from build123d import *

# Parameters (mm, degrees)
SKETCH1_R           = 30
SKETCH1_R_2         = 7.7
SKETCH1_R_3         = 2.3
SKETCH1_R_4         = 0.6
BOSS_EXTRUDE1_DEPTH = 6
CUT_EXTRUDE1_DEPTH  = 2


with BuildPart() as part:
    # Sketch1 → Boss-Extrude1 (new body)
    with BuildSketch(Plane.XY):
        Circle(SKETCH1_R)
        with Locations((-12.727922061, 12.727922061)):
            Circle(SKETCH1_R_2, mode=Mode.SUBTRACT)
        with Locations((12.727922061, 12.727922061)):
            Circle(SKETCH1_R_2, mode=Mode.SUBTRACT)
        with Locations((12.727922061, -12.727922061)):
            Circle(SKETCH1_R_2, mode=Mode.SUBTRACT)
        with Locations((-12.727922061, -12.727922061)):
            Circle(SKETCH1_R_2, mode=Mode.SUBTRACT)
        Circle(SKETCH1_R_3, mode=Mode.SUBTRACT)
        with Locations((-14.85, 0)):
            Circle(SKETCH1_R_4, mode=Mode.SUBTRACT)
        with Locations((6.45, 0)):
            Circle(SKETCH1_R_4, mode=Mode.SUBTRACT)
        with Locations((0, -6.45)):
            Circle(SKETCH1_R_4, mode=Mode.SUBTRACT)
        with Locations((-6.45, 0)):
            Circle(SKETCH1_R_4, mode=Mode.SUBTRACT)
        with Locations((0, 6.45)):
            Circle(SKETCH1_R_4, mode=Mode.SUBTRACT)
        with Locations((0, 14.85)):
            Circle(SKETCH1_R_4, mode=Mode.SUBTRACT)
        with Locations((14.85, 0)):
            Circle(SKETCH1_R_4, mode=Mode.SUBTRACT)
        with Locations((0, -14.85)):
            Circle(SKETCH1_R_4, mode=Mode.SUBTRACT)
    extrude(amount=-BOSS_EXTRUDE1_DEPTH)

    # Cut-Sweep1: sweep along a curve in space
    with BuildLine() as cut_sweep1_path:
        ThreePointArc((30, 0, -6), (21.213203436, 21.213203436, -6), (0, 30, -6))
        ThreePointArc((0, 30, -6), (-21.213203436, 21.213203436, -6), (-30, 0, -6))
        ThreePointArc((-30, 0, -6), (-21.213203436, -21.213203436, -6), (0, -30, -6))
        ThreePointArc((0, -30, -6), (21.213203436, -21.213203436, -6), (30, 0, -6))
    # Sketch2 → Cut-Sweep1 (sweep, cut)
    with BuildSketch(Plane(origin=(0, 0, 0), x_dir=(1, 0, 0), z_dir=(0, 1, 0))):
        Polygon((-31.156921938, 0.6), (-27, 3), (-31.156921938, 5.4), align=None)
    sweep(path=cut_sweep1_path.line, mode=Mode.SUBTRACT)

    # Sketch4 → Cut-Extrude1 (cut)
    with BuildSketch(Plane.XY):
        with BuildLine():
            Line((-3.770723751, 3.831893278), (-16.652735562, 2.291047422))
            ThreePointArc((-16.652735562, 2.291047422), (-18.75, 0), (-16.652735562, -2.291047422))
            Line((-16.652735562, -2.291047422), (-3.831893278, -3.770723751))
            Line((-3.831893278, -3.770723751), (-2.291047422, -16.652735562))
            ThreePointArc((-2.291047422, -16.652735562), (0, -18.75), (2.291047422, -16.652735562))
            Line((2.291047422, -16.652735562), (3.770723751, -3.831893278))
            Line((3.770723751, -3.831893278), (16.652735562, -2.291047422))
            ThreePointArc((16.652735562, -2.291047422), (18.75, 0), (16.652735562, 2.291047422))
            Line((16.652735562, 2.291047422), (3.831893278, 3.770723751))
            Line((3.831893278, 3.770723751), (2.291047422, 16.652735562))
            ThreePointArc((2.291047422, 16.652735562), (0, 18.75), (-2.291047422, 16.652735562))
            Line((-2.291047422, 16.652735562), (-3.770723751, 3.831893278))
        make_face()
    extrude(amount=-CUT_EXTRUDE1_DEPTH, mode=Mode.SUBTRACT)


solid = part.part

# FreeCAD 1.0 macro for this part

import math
import FreeCAD as App
import Part
import Sketcher
from FreeCAD import Vector
Q = App.Units.Quantity


def add_polygon(sketch, points):
    """Adds a closed chain of lines whose ends are joined by coincident constraints."""
    first, n = sketch.GeometryCount, len(points)
    for a, b in zip(points, points[1:] + points[:1]):
        sketch.addGeometry(Part.LineSegment(App.Vector(*a, 0), App.Vector(*b, 0)), False)
    for i in range(n):
        sketch.addConstraint(Sketcher.Constraint("Coincident", first + i, 2, first + (i + 1) % n, 1))

doc = App.newDocument("Part")
body = doc.addObject("PartDesign::Body", "Body")

sketch1 = body.newObject("Sketcher::SketchObject", "Sketch")
sketch1.AttachmentSupport = (doc.getObject("XY_Plane"), [""])
sketch1.MapMode = "FlatFace"
sketch1.addGeometry([
    Part.Circle(Vector(0, 0, 0), Vector(0, 0, 1), 30),
    Part.Circle(Vector(-12.727922, -12.727922, 0), Vector(0, 0, 1), 7.7),
    Part.Circle(Vector(0, -14.85, 0), Vector(0, 0, 1), 0.6),
    Part.Circle(Vector(0, -6.45, 0), Vector(0, 0, 1), 0.6),
    Part.Circle(Vector(12.727922, -12.727922, 0), Vector(0, 0, 1), 7.7),
    Part.Circle(Vector(-14.85, 0, 0), Vector(0, 0, 1), 0.6),
    Part.Circle(Vector(-6.45, 0, 0), Vector(0, 0, 1), 0.6),
    Part.Circle(Vector(0, 0, 0), Vector(0, 0, 1), 2.3),
    Part.Circle(Vector(0, 6.45, 0), Vector(0, 0, 1), 0.6),
    Part.Circle(Vector(-12.727922, 12.727922, 0), Vector(0, 0, 1), 7.7),
    Part.Circle(Vector(0, 14.85, 0), Vector(0, 0, 1), 0.6),
    Part.Circle(Vector(6.45, 0, 0), Vector(0, 0, 1), 0.6),
    Part.Circle(Vector(14.85, 0, 0), Vector(0, 0, 1), 0.6),
    Part.Circle(Vector(12.727922, 12.727922, 0), Vector(0, 0, 1), 7.7),
], False)
sketch1.addConstraint([
    Sketcher.Constraint("Coincident", 0, 3, -1, 1),
    Sketcher.Constraint("Coincident", 7, 3, -1, 1),
    Sketcher.Constraint("Equal", 2, 3),
    Sketcher.Constraint("Equal", 1, 4),
    Sketcher.Constraint("Equal", 3, 5),
    Sketcher.Constraint("Equal", 5, 6),
    Sketcher.Constraint("Equal", 6, 8),
    Sketcher.Constraint("Equal", 4, 9),
    Sketcher.Constraint("Equal", 8, 10),
    Sketcher.Constraint("Equal", 10, 11),
    Sketcher.Constraint("Equal", 11, 12),
    Sketcher.Constraint("Equal", 9, 13),
    Sketcher.Constraint("Symmetric", 3, 3, 8, 3, -1, 1),
    Sketcher.Constraint("Symmetric", 4, 3, 9, 3, -1, 1),
    Sketcher.Constraint("Symmetric", 2, 3, 10, 3, -1, 1),
    Sketcher.Constraint("Symmetric", 6, 3, 11, 3, -1, 1),
    Sketcher.Constraint("Symmetric", 5, 3, 12, 3, -1, 1),
    Sketcher.Constraint("Symmetric", 1, 3, 13, 3, -1, 1),
    Sketcher.Constraint("Symmetric", 1, 3, 4, 3, -2),
    Sketcher.Constraint("PointOnObject", 2, 3, -2),
    Sketcher.Constraint("PointOnObject", 3, 3, -2),
    Sketcher.Constraint("PointOnObject", 5, 3, -1),
    Sketcher.Constraint("PointOnObject", 6, 3, -1),
    Sketcher.Constraint("Diameter", 0, 60.0),
    Sketcher.Constraint("Diameter", 1, 15.4),
    Sketcher.Constraint("Diameter", 2, 1.2),
    Sketcher.Constraint("Diameter", 7, 4.6),
    Sketcher.Constraint("DistanceY", 2, 3, 3, 3, 8.4),
    Sketcher.Constraint("DistanceX", 5, 3, 6, 3, 8.4),
    Sketcher.Constraint("DistanceY", 3, 3, 8, 3, 12.9),
    Sketcher.Constraint("DistanceX", 6, 3, 11, 3, 12.9),
    Sketcher.Constraint("DistanceX", 1, 3, -1, 1, 12.727922),
    Sketcher.Constraint("DistanceY", 1, 3, -1, 1, 12.727922),
])
pad1 = body.newObject("PartDesign::Pad", "Pad")
pad1.Profile = sketch1
pad1.Length = 6
pad1.Reversed = True

sketch2 = body.newObject("Sketcher::SketchObject", "Sketch001")
sketch2.AttachmentSupport = (doc.getObject("XZ_Plane"), [""])
sketch2.MapMode = "FlatFace"
add_polygon(sketch2, [(-31.156922, -0.6), (-27, -3), (-31.156922, -5.4)])
sketch2.addConstraint([
    Sketcher.Constraint("Vertical", 2),
    Sketcher.Constraint("Equal", 0, 1),
    Sketcher.Constraint("Angle", 0, Q("-30 deg")),
    Sketcher.Constraint("DistanceY", 2, 1, 2, 2, 4.8),
    Sketcher.Constraint("DistanceX", 0, 2, -1, 1, 27.0),
    Sketcher.Constraint("DistanceY", 0, 2, -1, 1, 3.0),
])

sketch3 = body.newObject("Sketcher::SketchObject", "Sketch002")
sketch3.AttachmentSupport = (doc.getObject("XY_Plane"), [""])
sketch3.MapMode = "FlatFace"
sketch3.AttachmentOffset = App.Placement(Vector(0, 0, -6), App.Rotation())
sketch3.addGeometry([
    Part.ArcOfCircle(Part.Circle(Vector(0, 0, 0), Vector(0, 0, 1), 30), math.radians(0), math.radians(90)),
    Part.ArcOfCircle(Part.Circle(Vector(0, 0, 0), Vector(0, 0, 1), 30), math.radians(90), math.radians(180)),
    Part.ArcOfCircle(Part.Circle(Vector(0, 0, 0), Vector(0, 0, 1), 30), math.radians(180), math.radians(270)),
    Part.ArcOfCircle(Part.Circle(Vector(0, 0, 0), Vector(0, 0, 1), 30), math.radians(-90), math.radians(0)),
], False)
sketch3.addConstraint([
    Sketcher.Constraint("Tangent", 0, 2, 1, 1),
    Sketcher.Constraint("Tangent", 1, 2, 2, 1),
    Sketcher.Constraint("Tangent", 2, 2, 3, 1),
    Sketcher.Constraint("Tangent", 3, 2, 0, 1),
    Sketcher.Constraint("Coincident", 0, 3, -1, 1),
    Sketcher.Constraint("Equal", 0, 1),
    Sketcher.Constraint("PointOnObject", 0, 2, -2),
    Sketcher.Constraint("PointOnObject", 1, 2, -1),
    Sketcher.Constraint("PointOnObject", 2, 2, -2),
    Sketcher.Constraint("PointOnObject", 3, 2, -1),
    Sketcher.Constraint("Radius", 0, 30.0),
])
doc.recompute()

subtractivepipe = body.newObject("PartDesign::SubtractivePipe", "SubtractivePipe")
subtractivepipe.Profile = sketch2
subtractivepipe.Spine = (sketch3, ["Edge1", "Edge2", "Edge3", "Edge4"])

sketch4 = body.newObject("Sketcher::SketchObject", "Sketch003")
sketch4.AttachmentSupport = (doc.getObject("XY_Plane"), [""])
sketch4.MapMode = "FlatFace"
sketch4.addGeometry([
    Part.LineSegment(Vector(-3.770724, 3.831893, 0), Vector(-16.652736, 2.291047, 0)),
    Part.ArcOfCircle(Part.Circle(Vector(-16.45, 0, 0), Vector(0, 0, 1), 2.3), math.radians(95.056951), math.radians(264.943049)),
    Part.LineSegment(Vector(-16.652736, -2.291047, 0), Vector(-3.831893, -3.770724, 0)),
    Part.LineSegment(Vector(-3.831893, -3.770724, 0), Vector(-2.291047, -16.652736, 0)),
    Part.ArcOfCircle(Part.Circle(Vector(0, -16.45, 0), Vector(0, 0, 1), 2.3), math.radians(-174.943049), math.radians(-5.056951)),
    Part.LineSegment(Vector(2.291047, -16.652736, 0), Vector(3.770724, -3.831893, 0)),
    Part.LineSegment(Vector(3.770724, -3.831893, 0), Vector(16.652736, -2.291047, 0)),
    Part.ArcOfCircle(Part.Circle(Vector(16.45, 0, 0), Vector(0, 0, 1), 2.3), math.radians(-84.943049), math.radians(84.943049)),
    Part.LineSegment(Vector(16.652736, 2.291047, 0), Vector(3.831893, 3.770724, 0)),
    Part.LineSegment(Vector(3.831893, 3.770724, 0), Vector(2.291047, 16.652736, 0)),
    Part.ArcOfCircle(Part.Circle(Vector(0, 16.45, 0), Vector(0, 0, 1), 2.3), math.radians(5.056951), math.radians(174.943049)),
    Part.LineSegment(Vector(-2.291047, 16.652736, 0), Vector(-3.770724, 3.831893, 0)),
], False)
sketch4.addConstraint([
    Sketcher.Constraint("Coincident", 0, 2, 1, 1),
    Sketcher.Constraint("Coincident", 1, 2, 2, 1),
    Sketcher.Constraint("Coincident", 2, 2, 3, 1),
    Sketcher.Constraint("Coincident", 3, 2, 4, 1),
    Sketcher.Constraint("Coincident", 4, 2, 5, 1),
    Sketcher.Constraint("Coincident", 5, 2, 6, 1),
    Sketcher.Constraint("Coincident", 6, 2, 7, 1),
    Sketcher.Constraint("Coincident", 7, 2, 8, 1),
    Sketcher.Constraint("Coincident", 8, 2, 9, 1),
    Sketcher.Constraint("Coincident", 9, 2, 10, 1),
    Sketcher.Constraint("Coincident", 10, 2, 11, 1),
    Sketcher.Constraint("Coincident", 11, 2, 0, 1),
    Sketcher.Constraint("Equal", 1, 4),
    Sketcher.Constraint("Equal", 4, 7),
    Sketcher.Constraint("Equal", 7, 10),
    Sketcher.Constraint("Symmetric", 1, 3, 7, 3, -1, 1),
    Sketcher.Constraint("Symmetric", 4, 3, 10, 3, -1, 1),
    Sketcher.Constraint("Symmetric", 2, 2, 8, 2, -1, 1),
    Sketcher.Constraint("Symmetric", 5, 2, 11, 2, -1, 1),
    Sketcher.Constraint("Symmetric", 3, 2, 4, 2, -2),
    Sketcher.Constraint("Symmetric", 1, 2, 6, 2, -2),
    Sketcher.Constraint("Perpendicular", 0, 3),
    Sketcher.Constraint("Perpendicular", 2, 5),
    Sketcher.Constraint("Perpendicular", 3, 6),
    Sketcher.Constraint("Perpendicular", 5, 8),
    Sketcher.Constraint("Perpendicular", 6, 9),
    Sketcher.Constraint("Perpendicular", 8, 11),
    Sketcher.Constraint("Equal", 0, 3),
    Sketcher.Constraint("Radius", 1, 2.3),
    Sketcher.Constraint("DistanceX", 1, 3, 7, 3, 32.9),
    Sketcher.Constraint("DistanceY", 4, 3, 10, 3, 32.9),
    Sketcher.Constraint("DistanceY", 2, 2, 0, 2, 6.061771),
    Sketcher.Constraint("DistanceY", 3, 2, 2, 2, 12.882012),
    Sketcher.Constraint("DistanceX", 2, 2, 4, 2, 6.122941),
])
pocket1 = body.newObject("PartDesign::Pocket", "Pocket")
pocket1.Profile = sketch4
pocket1.Length = 2

doc.recompute()
